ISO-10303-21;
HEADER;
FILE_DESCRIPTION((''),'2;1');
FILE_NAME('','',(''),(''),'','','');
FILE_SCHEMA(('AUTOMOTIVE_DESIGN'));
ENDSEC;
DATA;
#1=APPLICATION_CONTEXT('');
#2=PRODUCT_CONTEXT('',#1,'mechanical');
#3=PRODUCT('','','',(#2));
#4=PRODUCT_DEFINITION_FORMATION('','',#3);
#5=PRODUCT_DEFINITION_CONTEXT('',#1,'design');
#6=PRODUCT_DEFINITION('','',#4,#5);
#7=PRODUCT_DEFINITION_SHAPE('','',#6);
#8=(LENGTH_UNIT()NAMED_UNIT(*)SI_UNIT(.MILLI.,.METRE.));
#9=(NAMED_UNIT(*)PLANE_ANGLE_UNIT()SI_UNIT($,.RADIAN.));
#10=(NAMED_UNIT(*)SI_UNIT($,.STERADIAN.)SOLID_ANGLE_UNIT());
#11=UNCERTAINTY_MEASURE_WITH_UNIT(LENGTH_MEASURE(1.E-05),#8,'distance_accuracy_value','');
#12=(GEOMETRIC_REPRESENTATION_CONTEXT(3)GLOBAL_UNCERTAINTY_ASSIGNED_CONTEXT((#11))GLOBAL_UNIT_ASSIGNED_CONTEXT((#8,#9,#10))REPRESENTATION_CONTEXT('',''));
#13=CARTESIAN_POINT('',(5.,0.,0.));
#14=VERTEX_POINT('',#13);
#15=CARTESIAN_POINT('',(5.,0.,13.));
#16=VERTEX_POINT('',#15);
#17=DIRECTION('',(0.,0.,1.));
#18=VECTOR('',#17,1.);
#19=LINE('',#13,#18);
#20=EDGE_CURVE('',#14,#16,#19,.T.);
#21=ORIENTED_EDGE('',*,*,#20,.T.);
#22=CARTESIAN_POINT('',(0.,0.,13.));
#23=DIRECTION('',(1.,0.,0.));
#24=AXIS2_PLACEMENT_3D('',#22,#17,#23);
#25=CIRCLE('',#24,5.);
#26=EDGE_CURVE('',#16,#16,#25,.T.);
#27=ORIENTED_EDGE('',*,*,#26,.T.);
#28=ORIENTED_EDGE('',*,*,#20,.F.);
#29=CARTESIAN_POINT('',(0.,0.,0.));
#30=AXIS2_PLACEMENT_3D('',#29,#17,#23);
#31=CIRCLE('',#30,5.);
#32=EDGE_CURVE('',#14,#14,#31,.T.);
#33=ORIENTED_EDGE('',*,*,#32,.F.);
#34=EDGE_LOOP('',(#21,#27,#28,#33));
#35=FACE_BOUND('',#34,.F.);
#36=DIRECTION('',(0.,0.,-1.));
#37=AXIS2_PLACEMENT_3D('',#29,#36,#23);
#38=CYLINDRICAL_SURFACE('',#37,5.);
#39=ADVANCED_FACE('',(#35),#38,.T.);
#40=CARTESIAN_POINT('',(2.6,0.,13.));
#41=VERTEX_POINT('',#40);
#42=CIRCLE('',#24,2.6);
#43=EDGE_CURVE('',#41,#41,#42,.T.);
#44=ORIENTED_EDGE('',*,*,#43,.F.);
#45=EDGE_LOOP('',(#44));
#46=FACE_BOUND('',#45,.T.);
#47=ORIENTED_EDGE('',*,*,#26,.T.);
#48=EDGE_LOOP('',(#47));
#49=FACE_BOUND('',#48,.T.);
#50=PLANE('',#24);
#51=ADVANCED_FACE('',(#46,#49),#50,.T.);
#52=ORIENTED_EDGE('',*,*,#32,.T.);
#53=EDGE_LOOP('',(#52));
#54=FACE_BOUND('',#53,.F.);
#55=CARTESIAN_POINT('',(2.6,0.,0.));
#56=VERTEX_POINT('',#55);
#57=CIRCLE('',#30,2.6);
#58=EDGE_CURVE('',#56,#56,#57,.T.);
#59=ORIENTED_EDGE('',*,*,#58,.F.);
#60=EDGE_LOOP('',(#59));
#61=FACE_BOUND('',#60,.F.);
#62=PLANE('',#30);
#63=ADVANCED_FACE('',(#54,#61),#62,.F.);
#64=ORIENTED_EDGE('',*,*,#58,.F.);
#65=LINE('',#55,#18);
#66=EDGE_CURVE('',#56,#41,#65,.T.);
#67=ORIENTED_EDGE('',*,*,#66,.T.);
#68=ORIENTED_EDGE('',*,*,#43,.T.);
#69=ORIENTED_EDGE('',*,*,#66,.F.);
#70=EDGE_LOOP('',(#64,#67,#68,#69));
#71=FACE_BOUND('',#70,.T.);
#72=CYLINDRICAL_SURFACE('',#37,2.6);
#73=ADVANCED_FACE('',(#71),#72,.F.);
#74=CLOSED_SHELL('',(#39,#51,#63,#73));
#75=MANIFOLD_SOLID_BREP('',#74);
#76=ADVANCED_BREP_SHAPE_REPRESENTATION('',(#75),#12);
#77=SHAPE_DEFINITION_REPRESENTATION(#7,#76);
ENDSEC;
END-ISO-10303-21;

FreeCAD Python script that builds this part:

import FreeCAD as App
import Part
import Sketcher

V = App.Vector
Q = App.Units.Quantity

doc = App.newDocument("Part")
body = doc.addObject("PartDesign::Body", "Body")

sketch1 = doc.addObject("Sketcher::SketchObject", "Sketch")
body.addObject(sketch1)
sketch1.AttachmentSupport = (doc.XY_Plane, [""])
sketch1.MapMode = "FlatFace"
sketch1.addGeometry([
    Part.Circle(V(0, 0, 0), V(0, 0, 1), 5),
    Part.Circle(V(0, 0, 0), V(0, 0, 1), 2.6),
], False)
sketch1.addConstraint([
    Sketcher.Constraint("Coincident", 0, 3, -1, 1),
    Sketcher.Constraint("Coincident", 1, 3, -1, 1),
    Sketcher.Constraint("Diameter", 0, Q("10 mm")),
    Sketcher.Constraint("Diameter", 1, Q("5.2 mm")),
])
pad1 = doc.addObject("PartDesign::Pad", "Pad")
body.addObject(pad1)
pad1.Profile = sketch1
pad1.Length = 13

doc.recompute()
